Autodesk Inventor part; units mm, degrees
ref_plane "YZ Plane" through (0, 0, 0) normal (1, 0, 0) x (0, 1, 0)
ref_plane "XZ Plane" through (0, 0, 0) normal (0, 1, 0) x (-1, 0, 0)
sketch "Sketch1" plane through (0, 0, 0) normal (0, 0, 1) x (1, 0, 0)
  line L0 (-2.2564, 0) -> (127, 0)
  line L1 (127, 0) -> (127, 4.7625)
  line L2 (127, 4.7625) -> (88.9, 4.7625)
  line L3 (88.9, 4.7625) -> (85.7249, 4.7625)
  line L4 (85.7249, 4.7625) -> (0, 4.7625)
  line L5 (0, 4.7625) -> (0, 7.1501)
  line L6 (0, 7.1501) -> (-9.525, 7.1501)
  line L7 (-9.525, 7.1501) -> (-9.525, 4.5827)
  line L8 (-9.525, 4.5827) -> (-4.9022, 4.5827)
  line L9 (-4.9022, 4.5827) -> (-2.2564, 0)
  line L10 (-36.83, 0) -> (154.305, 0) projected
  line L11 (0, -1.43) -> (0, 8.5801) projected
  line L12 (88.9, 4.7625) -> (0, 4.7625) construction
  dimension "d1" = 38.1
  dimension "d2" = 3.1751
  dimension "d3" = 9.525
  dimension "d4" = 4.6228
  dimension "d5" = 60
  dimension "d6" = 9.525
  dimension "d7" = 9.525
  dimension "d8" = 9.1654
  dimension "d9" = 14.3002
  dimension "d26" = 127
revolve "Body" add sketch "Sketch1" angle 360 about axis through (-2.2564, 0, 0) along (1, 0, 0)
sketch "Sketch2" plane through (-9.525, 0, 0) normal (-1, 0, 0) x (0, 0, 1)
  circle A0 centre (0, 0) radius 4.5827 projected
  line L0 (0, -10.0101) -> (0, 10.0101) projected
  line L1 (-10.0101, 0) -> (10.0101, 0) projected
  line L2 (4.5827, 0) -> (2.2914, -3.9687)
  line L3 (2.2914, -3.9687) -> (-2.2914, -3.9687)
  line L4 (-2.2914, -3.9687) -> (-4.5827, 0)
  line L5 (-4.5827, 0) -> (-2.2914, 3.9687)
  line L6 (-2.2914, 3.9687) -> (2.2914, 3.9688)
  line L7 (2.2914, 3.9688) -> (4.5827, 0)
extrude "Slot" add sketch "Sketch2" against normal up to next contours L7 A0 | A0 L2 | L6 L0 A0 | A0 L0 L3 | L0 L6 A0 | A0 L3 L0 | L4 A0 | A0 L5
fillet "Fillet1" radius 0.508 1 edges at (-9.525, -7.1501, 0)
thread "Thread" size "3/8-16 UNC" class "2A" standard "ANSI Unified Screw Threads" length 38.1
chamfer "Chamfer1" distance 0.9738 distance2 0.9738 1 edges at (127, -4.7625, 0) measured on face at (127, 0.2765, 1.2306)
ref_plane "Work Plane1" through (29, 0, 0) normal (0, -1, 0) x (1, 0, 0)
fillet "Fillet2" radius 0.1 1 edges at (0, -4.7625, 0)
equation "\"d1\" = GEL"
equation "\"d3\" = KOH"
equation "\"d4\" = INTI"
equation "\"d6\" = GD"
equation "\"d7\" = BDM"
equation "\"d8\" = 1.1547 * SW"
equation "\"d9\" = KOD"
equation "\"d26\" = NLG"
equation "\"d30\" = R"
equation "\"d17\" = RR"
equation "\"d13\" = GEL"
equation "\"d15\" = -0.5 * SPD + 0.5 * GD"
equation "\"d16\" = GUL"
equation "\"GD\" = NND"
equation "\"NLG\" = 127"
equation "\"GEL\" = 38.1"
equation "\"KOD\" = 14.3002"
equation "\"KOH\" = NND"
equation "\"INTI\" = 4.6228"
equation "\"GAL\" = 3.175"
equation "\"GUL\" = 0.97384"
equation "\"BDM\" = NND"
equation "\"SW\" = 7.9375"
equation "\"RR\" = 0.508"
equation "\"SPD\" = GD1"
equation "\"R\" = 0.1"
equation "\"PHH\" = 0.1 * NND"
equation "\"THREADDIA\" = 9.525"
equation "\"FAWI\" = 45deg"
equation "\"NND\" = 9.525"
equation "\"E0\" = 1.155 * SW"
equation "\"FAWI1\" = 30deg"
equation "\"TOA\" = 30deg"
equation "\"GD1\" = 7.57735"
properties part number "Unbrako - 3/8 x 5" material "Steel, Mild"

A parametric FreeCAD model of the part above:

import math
import FreeCAD as App
import Part
import Sketcher
from FreeCAD import Vector
Q = App.Units.Quantity


def edges_at(feature, points):
    """Names of the edges that pass closest to the given points."""
    edges = feature.Shape.Edges
    near = lambda p: min(range(len(edges)), key=lambda i: edges[i].distToShape(Part.Vertex(*p))[0])
    return sorted({f"Edge{near(p) + 1}" for p in points})


def add_polygon(sketch, points):
    """Adds a closed chain of lines whose ends are joined by coincident constraints."""
    first, n = sketch.GeometryCount, len(points)
    for a, b in zip(points, points[1:] + points[:1]):
        sketch.addGeometry(Part.LineSegment(App.Vector(*a, 0), App.Vector(*b, 0)), False)
    for i in range(n):
        sketch.addConstraint(Sketcher.Constraint("Coincident", first + i, 2, first + (i + 1) % n, 1))

doc = App.newDocument("Part")
body = doc.addObject("PartDesign::Body", "Body")

# Sketch on XY plane
sketch1 = body.newObject("Sketcher::SketchObject", "Sketch")
sketch1.AttachmentSupport = (doc.getObject("XY_Plane"), [""])
sketch1.MapMode = "FlatFace"
add_polygon(sketch1, [(-4.9, 4.6), (-2.3, 0), (127, 0), (127, 4.8), (0, 4.8), (0, 7.2), (-9.5, 7.2), (-9.5, 4.6)])  # lines 0-7
sketch1.addConstraint(Sketcher.Constraint("Horizontal", 1))
sketch1.addConstraint(Sketcher.Constraint("Vertical", 2))
sketch1.addConstraint(Sketcher.Constraint("Horizontal", 3))
sketch1.addConstraint(Sketcher.Constraint("Vertical", 4))
sketch1.addConstraint(Sketcher.Constraint("Horizontal", 5))
sketch1.addConstraint(Sketcher.Constraint("Vertical", 6))
sketch1.addConstraint(Sketcher.Constraint("Horizontal", 7))
sketch1.addConstraint(Sketcher.Constraint("PointOnObject", 0, 2, -1))
sketch1.addConstraint(Sketcher.Constraint("PointOnObject", 3, 2, -2))
sketch1.addConstraint(Sketcher.Constraint("DistanceX", 3, 2, 3, 1, Q("5 in")))
sketch1.addConstraint(Sketcher.Constraint("Angle", 0, Q("-60.0002 deg")))
sketch1.addConstraint(Sketcher.Constraint("DistanceX", 5, 2, 5, 1, Q("0.375 in")))
sketch1.addConstraint(Sketcher.Constraint("DistanceX", 7, 1, 7, 2, Q("0.182 in")))
sketch1.addConstraint(Sketcher.Constraint("DistanceY", 2, 1, 2, 2, Q("0.1875 in")))
sketch1.addConstraint(Sketcher.Constraint("DistanceY", 4, 1, 4, 2, Q("0.094 in")))
sketch1.addConstraint(Sketcher.Constraint("DistanceX", 1, 1, 1, 2, 129.2564))
revolution = body.newObject("PartDesign::Revolution", "Revolution")
revolution.Profile = sketch1
revolution.ReferenceAxis = (sketch1, ["H_Axis"])
revolution.Angle = 360

# Sketch on YZ plane
sketch2 = body.newObject("Sketcher::SketchObject", "Sketch001")
sketch2.AttachmentSupport = (doc.getObject("YZ_Plane"), [""])
sketch2.MapMode = "FlatFace"
sketch2.AttachmentOffset = App.Placement(Vector(0, 0, -0.375 * 25.4), App.Rotation())
sketch2.addGeometry(Part.LineSegment(Vector(4, 2.3, 0), Vector(0, 4.6, 0)), False)
sketch2.addGeometry(Part.ArcOfCircle(Part.Circle(Vector(0, 0, 0), Vector(0, 0, 1), 4.6), math.radians(30), math.radians(90)), False)
sketch2.addGeometry(Part.ArcOfCircle(Part.Circle(Vector(0, 0, 0), Vector(0, 0, 1), 4.6), math.radians(90), math.radians(150)), False)
sketch2.addGeometry(Part.LineSegment(Vector(0, 4.6, 0), Vector(-4, 2.3, 0)), False)
sketch2.addGeometry(Part.ArcOfCircle(Part.Circle(Vector(0, 0, 0), Vector(0, 0, 1), 4.6), math.radians(-30), math.radians(30)), False)
sketch2.addGeometry(Part.LineSegment(Vector(4, 2.3, 0), Vector(4, -2.3, 0)), False)
sketch2.addGeometry(Part.LineSegment(Vector(-4, 2.3, 0), Vector(-4, -2.3, 0)), False)
sketch2.addGeometry(Part.ArcOfCircle(Part.Circle(Vector(0, 0, 0), Vector(0, 0, 1), 4.6), math.radians(150), math.radians(210)), False)
sketch2.addGeometry(Part.LineSegment(Vector(-4, -2.3, 0), Vector(0, -4.6, 0)), False)
sketch2.addGeometry(Part.ArcOfCircle(Part.Circle(Vector(0, 0, 0), Vector(0, 0, 1), 4.6), math.radians(-150), math.radians(-90)), False)
sketch2.addGeometry(Part.ArcOfCircle(Part.Circle(Vector(0, 0, 0), Vector(0, 0, 1), 4.6), math.radians(-90), math.radians(-30)), False)
sketch2.addGeometry(Part.LineSegment(Vector(0, -4.6, 0), Vector(4, -2.3, 0)), False)
sketch2.addConstraint(Sketcher.Constraint("Coincident", 0, 1, 1, 1))
sketch2.addConstraint(Sketcher.Constraint("Coincident", 1, 2, 0, 2))
sketch2.addConstraint(Sketcher.Constraint("Coincident", 2, 1, 3, 1))
sketch2.addConstraint(Sketcher.Constraint("Coincident", 3, 2, 2, 2))
sketch2.addConstraint(Sketcher.Constraint("Coincident", 4, 1, 5, 2))
sketch2.addConstraint(Sketcher.Constraint("Coincident", 5, 1, 4, 2))
sketch2.addConstraint(Sketcher.Constraint("Coincident", 6, 1, 7, 1))
sketch2.addConstraint(Sketcher.Constraint("Coincident", 7, 2, 6, 2))
sketch2.addConstraint(Sketcher.Constraint("Coincident", 8, 1, 9, 1))
sketch2.addConstraint(Sketcher.Constraint("Coincident", 9, 2, 8, 2))
sketch2.addConstraint(Sketcher.Constraint("Coincident", 10, 1, 11, 1))
sketch2.addConstraint(Sketcher.Constraint("Coincident", 11, 2, 10, 2))
sketch2.addConstraint(Sketcher.Constraint("Vertical", 5))
sketch2.addConstraint(Sketcher.Constraint("Vertical", 6))
sketch2.addConstraint(Sketcher.Constraint("Coincident", 1, 3, -1, 1))
sketch2.addConstraint(Sketcher.Constraint("Coincident", 2, 3, -1, 1))
sketch2.addConstraint(Sketcher.Constraint("Coincident", 4, 3, -1, 1))
sketch2.addConstraint(Sketcher.Constraint("Coincident", 7, 3, -1, 1))
sketch2.addConstraint(Sketcher.Constraint("Coincident", 9, 3, -1, 1))
sketch2.addConstraint(Sketcher.Constraint("Coincident", 10, 3, -1, 1))
sketch2.addConstraint(Sketcher.Constraint("Coincident", 2, 1, 1, 2))
sketch2.addConstraint(Sketcher.Constraint("Coincident", 5, 1, 0, 1))
sketch2.addConstraint(Sketcher.Constraint("Coincident", 6, 1, 3, 2))
sketch2.addConstraint(Sketcher.Constraint("Coincident", 8, 1, 7, 2))
sketch2.addConstraint(Sketcher.Constraint("Coincident", 10, 1, 9, 2))
sketch2.addConstraint(Sketcher.Constraint("PointOnObject", 1, 2, -2))
sketch2.addConstraint(Sketcher.Constraint("PointOnObject", 9, 2, -2))
sketch2.addConstraint(Sketcher.Constraint("Parallel", 0, 8))
sketch2.addConstraint(Sketcher.Constraint("Parallel", 3, 11))
sketch2.addConstraint(Sketcher.Constraint("Angle", 0, Q("150.001 deg")))
sketch2.addConstraint(Sketcher.Constraint("Radius", 1, 4.5827))
pad1 = body.newObject("PartDesign::Pad", "Pad")
pad1.Profile = sketch2
pad1.Length = 4.9773
doc.recompute()

fillet = body.newObject("PartDesign::Fillet", "Fillet")
fillet.Base = (pad1, edges_at(pad1, [(-9.525, -7.15, 0)]))
fillet.Radius = Q("0.02 in")
doc.recompute()

chamfer = body.newObject("PartDesign::Chamfer", "Chamfer")
chamfer.Base = (fillet, edges_at(fillet, [(127, -4.763, 0)]))
chamfer.ChamferType = "Two distances"
chamfer.Size = 0.9738
chamfer.Size2 = 0.9738
doc.recompute()

fillet2 = body.newObject("PartDesign::Fillet", "Fillet001")
fillet2.Base = (chamfer, edges_at(chamfer, [(0, -4.763, 0)]))
fillet2.Radius = 0.1

doc.recompute()
